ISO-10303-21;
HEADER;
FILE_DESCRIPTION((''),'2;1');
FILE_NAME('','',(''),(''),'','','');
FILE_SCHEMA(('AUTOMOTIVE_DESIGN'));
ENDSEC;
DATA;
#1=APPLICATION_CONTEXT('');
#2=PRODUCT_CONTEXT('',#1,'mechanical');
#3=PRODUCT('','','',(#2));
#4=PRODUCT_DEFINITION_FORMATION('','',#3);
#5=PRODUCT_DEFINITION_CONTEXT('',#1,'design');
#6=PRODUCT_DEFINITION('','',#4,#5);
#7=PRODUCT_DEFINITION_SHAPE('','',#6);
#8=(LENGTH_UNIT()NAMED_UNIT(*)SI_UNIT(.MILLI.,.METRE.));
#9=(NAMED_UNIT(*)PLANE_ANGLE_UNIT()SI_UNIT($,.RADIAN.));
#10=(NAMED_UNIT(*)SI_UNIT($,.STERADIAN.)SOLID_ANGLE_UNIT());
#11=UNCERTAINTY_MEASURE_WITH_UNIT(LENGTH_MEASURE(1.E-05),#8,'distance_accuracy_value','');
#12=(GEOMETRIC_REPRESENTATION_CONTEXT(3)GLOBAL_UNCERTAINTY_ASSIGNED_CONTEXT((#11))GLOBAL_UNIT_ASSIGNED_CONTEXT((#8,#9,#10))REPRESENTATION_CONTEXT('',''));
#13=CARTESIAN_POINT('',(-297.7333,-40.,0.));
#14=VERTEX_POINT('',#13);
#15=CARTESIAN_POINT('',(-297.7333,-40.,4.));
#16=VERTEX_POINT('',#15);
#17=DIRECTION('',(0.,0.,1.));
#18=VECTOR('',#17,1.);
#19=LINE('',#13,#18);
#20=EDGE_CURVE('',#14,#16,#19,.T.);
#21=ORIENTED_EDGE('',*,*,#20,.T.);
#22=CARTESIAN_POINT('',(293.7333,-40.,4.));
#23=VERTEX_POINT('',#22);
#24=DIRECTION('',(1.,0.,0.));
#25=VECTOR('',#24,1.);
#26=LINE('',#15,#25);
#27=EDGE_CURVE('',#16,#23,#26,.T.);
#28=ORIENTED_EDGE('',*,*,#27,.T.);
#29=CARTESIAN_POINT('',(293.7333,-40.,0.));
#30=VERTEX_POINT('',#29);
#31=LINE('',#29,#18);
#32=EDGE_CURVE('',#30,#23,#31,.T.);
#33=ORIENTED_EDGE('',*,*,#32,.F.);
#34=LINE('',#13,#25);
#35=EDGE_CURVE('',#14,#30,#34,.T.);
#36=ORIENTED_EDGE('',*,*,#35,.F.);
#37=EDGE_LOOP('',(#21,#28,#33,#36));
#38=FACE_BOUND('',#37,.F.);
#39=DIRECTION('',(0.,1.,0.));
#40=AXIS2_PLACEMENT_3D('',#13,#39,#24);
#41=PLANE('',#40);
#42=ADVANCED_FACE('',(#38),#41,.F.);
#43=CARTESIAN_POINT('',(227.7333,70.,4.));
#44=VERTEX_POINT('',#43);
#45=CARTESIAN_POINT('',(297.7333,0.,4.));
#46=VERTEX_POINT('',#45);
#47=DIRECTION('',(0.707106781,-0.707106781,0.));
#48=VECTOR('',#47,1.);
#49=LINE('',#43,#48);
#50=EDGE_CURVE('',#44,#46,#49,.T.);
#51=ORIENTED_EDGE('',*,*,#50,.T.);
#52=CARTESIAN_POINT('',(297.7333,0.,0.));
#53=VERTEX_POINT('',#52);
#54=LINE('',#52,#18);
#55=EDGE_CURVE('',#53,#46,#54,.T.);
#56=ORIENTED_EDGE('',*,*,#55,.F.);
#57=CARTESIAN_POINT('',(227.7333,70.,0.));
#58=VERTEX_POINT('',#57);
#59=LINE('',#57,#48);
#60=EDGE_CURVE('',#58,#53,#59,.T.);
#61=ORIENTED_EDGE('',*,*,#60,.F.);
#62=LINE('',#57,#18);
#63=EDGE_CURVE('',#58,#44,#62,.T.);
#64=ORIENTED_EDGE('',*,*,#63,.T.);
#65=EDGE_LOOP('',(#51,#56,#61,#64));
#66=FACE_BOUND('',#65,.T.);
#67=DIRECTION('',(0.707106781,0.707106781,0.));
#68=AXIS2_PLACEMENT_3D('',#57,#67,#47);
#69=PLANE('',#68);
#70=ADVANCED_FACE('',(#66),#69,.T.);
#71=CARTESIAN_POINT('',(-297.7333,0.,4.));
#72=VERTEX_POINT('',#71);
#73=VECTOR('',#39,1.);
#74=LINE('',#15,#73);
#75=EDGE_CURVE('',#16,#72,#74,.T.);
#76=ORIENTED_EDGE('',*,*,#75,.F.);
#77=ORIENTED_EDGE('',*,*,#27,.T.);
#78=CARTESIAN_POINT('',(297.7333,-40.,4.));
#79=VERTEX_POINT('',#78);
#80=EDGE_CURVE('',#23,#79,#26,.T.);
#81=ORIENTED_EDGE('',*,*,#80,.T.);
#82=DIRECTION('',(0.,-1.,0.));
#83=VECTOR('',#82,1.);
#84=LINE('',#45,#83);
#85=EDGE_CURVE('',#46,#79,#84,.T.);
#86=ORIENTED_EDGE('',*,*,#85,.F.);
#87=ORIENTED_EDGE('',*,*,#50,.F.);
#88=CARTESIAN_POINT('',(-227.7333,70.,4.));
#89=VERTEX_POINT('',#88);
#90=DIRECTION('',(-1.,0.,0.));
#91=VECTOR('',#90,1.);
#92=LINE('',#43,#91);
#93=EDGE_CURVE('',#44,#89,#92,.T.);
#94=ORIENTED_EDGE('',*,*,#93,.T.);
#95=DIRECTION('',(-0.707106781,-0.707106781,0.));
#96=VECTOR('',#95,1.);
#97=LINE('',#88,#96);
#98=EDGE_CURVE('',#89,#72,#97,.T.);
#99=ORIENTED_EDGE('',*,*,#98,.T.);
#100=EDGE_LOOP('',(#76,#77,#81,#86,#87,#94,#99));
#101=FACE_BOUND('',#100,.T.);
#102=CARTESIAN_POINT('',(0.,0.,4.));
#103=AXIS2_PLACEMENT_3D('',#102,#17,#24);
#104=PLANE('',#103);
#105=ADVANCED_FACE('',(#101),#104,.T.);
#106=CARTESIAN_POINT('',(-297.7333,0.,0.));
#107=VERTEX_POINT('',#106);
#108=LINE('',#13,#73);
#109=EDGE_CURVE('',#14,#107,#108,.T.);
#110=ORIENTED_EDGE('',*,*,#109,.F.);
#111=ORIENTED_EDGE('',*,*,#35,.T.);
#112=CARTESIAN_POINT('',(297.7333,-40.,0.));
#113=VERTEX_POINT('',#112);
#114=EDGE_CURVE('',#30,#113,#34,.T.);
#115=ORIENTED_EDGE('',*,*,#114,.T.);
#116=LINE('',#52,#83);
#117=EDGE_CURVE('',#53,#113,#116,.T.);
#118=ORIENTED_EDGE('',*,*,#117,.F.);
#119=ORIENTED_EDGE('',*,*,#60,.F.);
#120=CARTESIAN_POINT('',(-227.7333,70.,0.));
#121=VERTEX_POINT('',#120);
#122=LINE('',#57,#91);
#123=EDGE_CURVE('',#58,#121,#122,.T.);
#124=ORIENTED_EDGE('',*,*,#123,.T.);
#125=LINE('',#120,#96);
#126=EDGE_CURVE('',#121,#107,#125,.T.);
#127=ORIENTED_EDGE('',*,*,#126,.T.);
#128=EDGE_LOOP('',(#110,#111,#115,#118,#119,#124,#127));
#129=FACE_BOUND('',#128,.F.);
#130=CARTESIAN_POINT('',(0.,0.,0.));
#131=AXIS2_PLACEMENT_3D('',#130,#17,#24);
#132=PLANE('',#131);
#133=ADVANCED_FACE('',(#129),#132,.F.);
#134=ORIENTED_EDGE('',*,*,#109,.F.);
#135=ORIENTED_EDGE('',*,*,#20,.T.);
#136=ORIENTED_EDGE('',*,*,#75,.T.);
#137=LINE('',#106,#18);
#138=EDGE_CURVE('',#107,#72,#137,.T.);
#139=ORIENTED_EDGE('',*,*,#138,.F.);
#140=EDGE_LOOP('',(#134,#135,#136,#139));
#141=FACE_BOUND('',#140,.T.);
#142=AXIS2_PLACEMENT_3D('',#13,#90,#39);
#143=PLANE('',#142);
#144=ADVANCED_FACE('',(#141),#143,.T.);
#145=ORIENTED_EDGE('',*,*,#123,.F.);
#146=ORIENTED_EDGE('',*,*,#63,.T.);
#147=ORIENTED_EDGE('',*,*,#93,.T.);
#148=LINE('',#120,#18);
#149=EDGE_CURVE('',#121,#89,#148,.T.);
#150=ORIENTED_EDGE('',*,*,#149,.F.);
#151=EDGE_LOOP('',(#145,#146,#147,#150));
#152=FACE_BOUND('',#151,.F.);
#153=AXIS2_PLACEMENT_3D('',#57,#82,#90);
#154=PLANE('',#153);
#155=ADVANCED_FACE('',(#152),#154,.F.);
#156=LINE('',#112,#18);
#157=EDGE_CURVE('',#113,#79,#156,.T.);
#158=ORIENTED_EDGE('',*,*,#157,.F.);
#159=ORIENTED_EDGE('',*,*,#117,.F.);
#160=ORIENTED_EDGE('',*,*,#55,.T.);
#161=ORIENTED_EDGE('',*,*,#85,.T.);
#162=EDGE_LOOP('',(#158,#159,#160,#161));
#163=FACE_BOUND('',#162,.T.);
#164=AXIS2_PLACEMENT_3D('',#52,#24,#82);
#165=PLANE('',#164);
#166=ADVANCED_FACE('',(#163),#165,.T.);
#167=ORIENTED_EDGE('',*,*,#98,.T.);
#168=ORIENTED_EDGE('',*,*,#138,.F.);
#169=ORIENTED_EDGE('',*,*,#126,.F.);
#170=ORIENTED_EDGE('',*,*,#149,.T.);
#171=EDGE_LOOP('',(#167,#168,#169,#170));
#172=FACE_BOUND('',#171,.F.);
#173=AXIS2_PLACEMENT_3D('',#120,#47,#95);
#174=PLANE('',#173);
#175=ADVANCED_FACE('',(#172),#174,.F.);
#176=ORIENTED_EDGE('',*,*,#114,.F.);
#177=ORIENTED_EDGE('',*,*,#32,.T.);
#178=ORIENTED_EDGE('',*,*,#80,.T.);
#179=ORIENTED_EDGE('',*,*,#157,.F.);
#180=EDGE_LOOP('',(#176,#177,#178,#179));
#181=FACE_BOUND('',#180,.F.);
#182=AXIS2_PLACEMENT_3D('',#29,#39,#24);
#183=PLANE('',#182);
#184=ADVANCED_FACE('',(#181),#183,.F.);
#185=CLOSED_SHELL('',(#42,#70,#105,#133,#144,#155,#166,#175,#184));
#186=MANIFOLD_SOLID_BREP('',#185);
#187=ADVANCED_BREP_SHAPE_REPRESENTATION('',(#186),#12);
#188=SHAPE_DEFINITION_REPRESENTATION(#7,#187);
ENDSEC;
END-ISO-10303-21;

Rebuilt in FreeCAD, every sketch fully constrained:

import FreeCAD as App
import Part
import Sketcher

doc = App.newDocument("Part")
body = doc.addObject("PartDesign::Body", "Body")

# Sketch on XY plane
sketch1 = body.newObject("Sketcher::SketchObject", "Sketch")
sketch1.AttachmentSupport = (doc.getObject("XY_Plane"), [""])
sketch1.MapMode = "FlatFace"
sketch1.addGeometry([
    Part.LineSegment(App.Vector(298, 0, 0), App.Vector(228, 70, 0)),  # 0
    Part.LineSegment(App.Vector(228, 70, 0), App.Vector(-228, 70, 0)),  # 1
    Part.LineSegment(App.Vector(-228, 70, 0), App.Vector(-298, 0, 0)),  # 2
    Part.LineSegment(App.Vector(-298, 0, 0), App.Vector(-298, -40, 0)),  # 3
    Part.LineSegment(App.Vector(-298, -40, 0), App.Vector(298, -40, 0)),  # 4
    Part.LineSegment(App.Vector(298, -40, 0), App.Vector(298, 0, 0)),  # 5
], False)
sketch1.addConstraint([
    Sketcher.Constraint("Coincident", 0, 2, 1, 1),
    Sketcher.Constraint("Coincident", 1, 2, 2, 1),
    Sketcher.Constraint("Coincident", 2, 2, 3, 1),
    Sketcher.Constraint("Coincident", 3, 2, 4, 1),
    Sketcher.Constraint("Coincident", 4, 2, 5, 1),
    Sketcher.Constraint("Coincident", 5, 2, 0, 1),
    Sketcher.Constraint("Horizontal", 1),
    Sketcher.Constraint("Vertical", 3),
    Sketcher.Constraint("Horizontal", 4),
    Sketcher.Constraint("Vertical", 5),
    Sketcher.Constraint("Symmetric", 2, 2, 5, 2, -1, 1),
    Sketcher.Constraint("PointOnObject", 2, 2, -1),
    Sketcher.Constraint("Perpendicular", 0, 2),
    Sketcher.Constraint("Equal", 0, 2),
    Sketcher.Constraint("DistanceY", 3, 2, 3, 1, 40.0),
    Sketcher.Constraint("DistanceY", -1, 1, 0, 2, 70.0),
    Sketcher.Constraint("DistanceX", 4, 1, 4, 2, 595.4666),
])
pad1 = body.newObject("PartDesign::Pad", "Pad")
pad1.Profile = sketch1
pad1.Length = 4

doc.recompute()
